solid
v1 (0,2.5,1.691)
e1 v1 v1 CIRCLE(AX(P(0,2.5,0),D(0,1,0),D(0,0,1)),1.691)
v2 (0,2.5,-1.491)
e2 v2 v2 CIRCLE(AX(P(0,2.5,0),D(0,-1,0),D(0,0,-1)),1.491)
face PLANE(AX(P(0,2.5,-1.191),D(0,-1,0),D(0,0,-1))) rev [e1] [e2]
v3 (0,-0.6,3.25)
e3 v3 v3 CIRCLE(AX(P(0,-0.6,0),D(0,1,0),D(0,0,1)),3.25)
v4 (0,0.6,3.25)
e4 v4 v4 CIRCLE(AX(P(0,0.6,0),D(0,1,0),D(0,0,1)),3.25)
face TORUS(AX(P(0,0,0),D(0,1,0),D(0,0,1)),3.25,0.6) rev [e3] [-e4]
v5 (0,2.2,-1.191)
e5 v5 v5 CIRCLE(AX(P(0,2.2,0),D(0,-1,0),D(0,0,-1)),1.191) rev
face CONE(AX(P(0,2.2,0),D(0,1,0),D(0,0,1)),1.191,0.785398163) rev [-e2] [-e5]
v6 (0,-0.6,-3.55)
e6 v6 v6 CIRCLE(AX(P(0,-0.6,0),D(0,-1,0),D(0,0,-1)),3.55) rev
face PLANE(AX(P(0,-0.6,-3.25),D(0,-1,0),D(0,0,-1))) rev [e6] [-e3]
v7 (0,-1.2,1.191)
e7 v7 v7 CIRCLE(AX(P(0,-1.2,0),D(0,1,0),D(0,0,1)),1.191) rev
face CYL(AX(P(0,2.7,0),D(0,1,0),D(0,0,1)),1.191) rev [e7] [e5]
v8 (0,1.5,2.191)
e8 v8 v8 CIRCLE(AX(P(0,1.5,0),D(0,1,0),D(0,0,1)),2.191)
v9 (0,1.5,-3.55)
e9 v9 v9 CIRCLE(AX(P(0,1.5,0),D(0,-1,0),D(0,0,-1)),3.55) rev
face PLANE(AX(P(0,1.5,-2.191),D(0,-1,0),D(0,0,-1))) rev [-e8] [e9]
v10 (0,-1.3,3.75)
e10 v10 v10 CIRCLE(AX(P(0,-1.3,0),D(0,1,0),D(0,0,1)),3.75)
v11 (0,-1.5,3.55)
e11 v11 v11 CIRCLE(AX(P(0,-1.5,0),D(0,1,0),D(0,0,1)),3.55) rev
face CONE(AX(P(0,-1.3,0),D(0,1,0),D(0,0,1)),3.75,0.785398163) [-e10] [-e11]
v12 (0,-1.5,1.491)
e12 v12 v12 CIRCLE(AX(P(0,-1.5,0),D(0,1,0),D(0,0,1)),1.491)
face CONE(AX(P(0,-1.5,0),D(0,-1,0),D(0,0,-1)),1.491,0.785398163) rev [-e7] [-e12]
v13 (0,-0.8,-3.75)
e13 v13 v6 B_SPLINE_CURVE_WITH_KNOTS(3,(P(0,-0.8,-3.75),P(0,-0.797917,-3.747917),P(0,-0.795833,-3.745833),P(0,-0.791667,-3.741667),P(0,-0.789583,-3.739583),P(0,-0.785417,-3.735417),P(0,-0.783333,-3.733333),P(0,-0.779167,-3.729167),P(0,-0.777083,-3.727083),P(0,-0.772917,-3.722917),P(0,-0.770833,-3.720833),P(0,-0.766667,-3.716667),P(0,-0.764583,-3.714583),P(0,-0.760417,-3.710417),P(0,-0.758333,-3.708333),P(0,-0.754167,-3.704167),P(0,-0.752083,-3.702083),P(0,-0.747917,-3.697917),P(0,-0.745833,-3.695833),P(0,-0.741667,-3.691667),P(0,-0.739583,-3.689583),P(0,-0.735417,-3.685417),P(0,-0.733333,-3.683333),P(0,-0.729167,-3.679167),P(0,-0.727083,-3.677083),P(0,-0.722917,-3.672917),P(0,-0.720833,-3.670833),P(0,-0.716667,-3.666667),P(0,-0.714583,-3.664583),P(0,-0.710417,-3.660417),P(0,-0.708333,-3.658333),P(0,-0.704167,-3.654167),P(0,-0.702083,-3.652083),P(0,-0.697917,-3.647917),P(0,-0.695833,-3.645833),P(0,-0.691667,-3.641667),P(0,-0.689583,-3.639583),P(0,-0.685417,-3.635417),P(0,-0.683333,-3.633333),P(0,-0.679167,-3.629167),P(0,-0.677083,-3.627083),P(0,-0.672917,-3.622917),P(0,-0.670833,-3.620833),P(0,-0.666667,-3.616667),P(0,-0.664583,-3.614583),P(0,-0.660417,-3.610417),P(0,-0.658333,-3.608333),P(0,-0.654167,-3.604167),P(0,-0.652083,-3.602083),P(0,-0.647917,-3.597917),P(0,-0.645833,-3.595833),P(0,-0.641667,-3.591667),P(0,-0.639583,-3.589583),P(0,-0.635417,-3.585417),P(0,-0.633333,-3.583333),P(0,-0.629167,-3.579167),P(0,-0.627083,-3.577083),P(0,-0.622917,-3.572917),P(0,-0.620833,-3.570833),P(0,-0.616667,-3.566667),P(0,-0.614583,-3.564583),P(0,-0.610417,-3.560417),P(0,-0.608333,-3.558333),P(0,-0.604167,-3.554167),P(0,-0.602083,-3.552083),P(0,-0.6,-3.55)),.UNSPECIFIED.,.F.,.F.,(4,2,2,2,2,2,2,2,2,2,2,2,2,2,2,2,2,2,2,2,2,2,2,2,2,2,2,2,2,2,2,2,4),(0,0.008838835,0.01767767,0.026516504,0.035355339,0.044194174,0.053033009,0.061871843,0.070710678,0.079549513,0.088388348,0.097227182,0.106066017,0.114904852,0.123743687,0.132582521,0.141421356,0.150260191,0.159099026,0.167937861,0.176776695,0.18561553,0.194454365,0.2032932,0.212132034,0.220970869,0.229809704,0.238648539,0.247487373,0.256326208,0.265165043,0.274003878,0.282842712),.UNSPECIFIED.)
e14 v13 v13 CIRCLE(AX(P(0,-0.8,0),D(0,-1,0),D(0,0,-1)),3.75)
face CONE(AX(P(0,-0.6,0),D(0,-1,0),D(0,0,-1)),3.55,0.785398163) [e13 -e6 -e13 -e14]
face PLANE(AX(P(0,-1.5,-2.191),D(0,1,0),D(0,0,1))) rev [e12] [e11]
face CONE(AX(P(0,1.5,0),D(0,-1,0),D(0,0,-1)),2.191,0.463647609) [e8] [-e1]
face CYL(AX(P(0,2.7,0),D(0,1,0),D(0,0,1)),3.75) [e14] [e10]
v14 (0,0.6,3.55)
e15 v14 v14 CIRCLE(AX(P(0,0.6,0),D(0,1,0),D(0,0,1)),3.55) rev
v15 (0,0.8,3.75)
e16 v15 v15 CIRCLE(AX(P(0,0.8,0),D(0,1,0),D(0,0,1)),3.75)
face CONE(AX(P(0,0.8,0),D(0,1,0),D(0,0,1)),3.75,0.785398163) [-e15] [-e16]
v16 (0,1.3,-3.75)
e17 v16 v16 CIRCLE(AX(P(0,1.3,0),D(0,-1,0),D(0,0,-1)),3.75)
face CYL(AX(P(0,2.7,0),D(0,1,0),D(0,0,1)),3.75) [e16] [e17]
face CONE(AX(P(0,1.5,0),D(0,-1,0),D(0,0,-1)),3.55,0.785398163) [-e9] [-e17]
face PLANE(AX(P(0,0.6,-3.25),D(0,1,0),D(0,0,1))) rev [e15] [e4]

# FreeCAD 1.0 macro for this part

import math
import FreeCAD as App
import Part
import Sketcher


def edges_at(feature, points):
    """Names of the edges that pass closest to the given points."""
    edges = feature.Shape.Edges
    near = lambda p: min(range(len(edges)), key=lambda i: edges[i].distToShape(Part.Vertex(*p))[0])
    return sorted({f"Edge{near(p) + 1}" for p in points})

doc = App.newDocument("Part")
body = doc.addObject("PartDesign::Body", "Body")

sketch1 = body.newObject("Sketcher::SketchObject", "Sketch")
sketch1.AttachmentSupport = (doc.getObject("YZ_Plane"), [""])
sketch1.MapMode = "FlatFace"
sketch1.addGeometry(Part.LineSegment(App.Vector(2.5, -1.191, 0), App.Vector(-1.5, -1.191, 0)), False)
sketch1.addGeometry(Part.LineSegment(App.Vector(-1.5, -1.191, 0), App.Vector(-1.5, -3.75, 0)), False)
sketch1.addGeometry(Part.LineSegment(App.Vector(-1.5, -3.75, 0), App.Vector(-0.6, -3.75, 0)), False)
sketch1.addGeometry(Part.LineSegment(App.Vector(-0.6, -3.75, 0), App.Vector(-0.6, -3.25, 0)), False)
sketch1.addGeometry(Part.ArcOfCircle(Part.Circle(App.Vector(0, -3.25, 0), App.Vector(0, 0, 1), 0.6), math.radians(0), math.radians(180)), False)
sketch1.addGeometry(Part.LineSegment(App.Vector(0.6, -3.25, 0), App.Vector(0.6, -3.75, 0)), False)
sketch1.addGeometry(Part.LineSegment(App.Vector(0.6, -3.75, 0), App.Vector(1.5, -3.75, 0)), False)
sketch1.addGeometry(Part.LineSegment(App.Vector(1.5, -3.75, 0), App.Vector(1.5, -2.191, 0)), False)
sketch1.addGeometry(Part.LineSegment(App.Vector(1.5, -2.191, 0), App.Vector(2.5, -1.691, 0)), False)
sketch1.addGeometry(Part.LineSegment(App.Vector(2.5, -1.691, 0), App.Vector(2.5, -1.191, 0)), False)
sketch1.addConstraint(Sketcher.Constraint("Coincident", 0, 2, 1, 1))
sketch1.addConstraint(Sketcher.Constraint("Coincident", 1, 2, 2, 1))
sketch1.addConstraint(Sketcher.Constraint("Coincident", 2, 2, 3, 1))
sketch1.addConstraint(Sketcher.Constraint("Tangent", 3, 2, 4, 2))
sketch1.addConstraint(Sketcher.Constraint("Tangent", 4, 1, 5, 1))
sketch1.addConstraint(Sketcher.Constraint("Coincident", 5, 2, 6, 1))
sketch1.addConstraint(Sketcher.Constraint("Coincident", 6, 2, 7, 1))
sketch1.addConstraint(Sketcher.Constraint("Coincident", 7, 2, 8, 1))
sketch1.addConstraint(Sketcher.Constraint("Coincident", 8, 2, 9, 1))
sketch1.addConstraint(Sketcher.Constraint("Coincident", 9, 2, 0, 1))
sketch1.addConstraint(Sketcher.Constraint("Horizontal", 0))
sketch1.addConstraint(Sketcher.Constraint("Vertical", 1))
sketch1.addConstraint(Sketcher.Constraint("Horizontal", 2))
sketch1.addConstraint(Sketcher.Constraint("Vertical", 3))
sketch1.addConstraint(Sketcher.Constraint("Vertical", 5))
sketch1.addConstraint(Sketcher.Constraint("Horizontal", 6))
sketch1.addConstraint(Sketcher.Constraint("Vertical", 7))
sketch1.addConstraint(Sketcher.Constraint("Vertical", 9))
sketch1.addConstraint(Sketcher.Constraint("Symmetric", 2, 2, 5, 2, -2))
sketch1.addConstraint(Sketcher.Constraint("Equal", 2, 6))
sketch1.addConstraint(Sketcher.Constraint("Equal", 5, 9))
sketch1.addConstraint(Sketcher.Constraint("Radius", 4, 0.6))
sketch1.addConstraint(Sketcher.Constraint("DistanceX", 0, 2, 0, 1, 4.0))
sketch1.addConstraint(Sketcher.Constraint("DistanceX", 2, 1, 2, 2, 0.9))
sketch1.addConstraint(Sketcher.Constraint("DistanceY", 3, 1, 3, 2, 0.5))
sketch1.addConstraint(Sketcher.Constraint("DistanceY", 7, 2, 9, 2, 1.0))
sketch1.addConstraint(Sketcher.Constraint("DistanceY", 1, 2, 1, 1, 2.559))
sketch1.addConstraint(Sketcher.Constraint("DistanceY", 4, 3, -1, 1, 3.25))
revolution = body.newObject("PartDesign::Revolution", "Revolution")
revolution.Profile = sketch1
revolution.ReferenceAxis = (sketch1, ["H_Axis"])
revolution.Angle = 360
doc.recompute()

chamfer = body.newObject("PartDesign::Chamfer", "Chamfer")
chamfer.Base = (revolution, edges_at(revolution, [(0, -1.5, -1.191), (0, 2.5, -1.191)]))
chamfer.Size = 0.3
doc.recompute()

chamfer2 = body.newObject("PartDesign::Chamfer", "Chamfer001")
chamfer2.Base = (chamfer, edges_at(chamfer, [
    (0, 1.5, -3.75),
    (0, 0.6, -3.75),
    (0, -0.6, -3.75),
    (0, -1.5, -3.75),
]))
chamfer2.Size = 0.2

doc.recompute()
